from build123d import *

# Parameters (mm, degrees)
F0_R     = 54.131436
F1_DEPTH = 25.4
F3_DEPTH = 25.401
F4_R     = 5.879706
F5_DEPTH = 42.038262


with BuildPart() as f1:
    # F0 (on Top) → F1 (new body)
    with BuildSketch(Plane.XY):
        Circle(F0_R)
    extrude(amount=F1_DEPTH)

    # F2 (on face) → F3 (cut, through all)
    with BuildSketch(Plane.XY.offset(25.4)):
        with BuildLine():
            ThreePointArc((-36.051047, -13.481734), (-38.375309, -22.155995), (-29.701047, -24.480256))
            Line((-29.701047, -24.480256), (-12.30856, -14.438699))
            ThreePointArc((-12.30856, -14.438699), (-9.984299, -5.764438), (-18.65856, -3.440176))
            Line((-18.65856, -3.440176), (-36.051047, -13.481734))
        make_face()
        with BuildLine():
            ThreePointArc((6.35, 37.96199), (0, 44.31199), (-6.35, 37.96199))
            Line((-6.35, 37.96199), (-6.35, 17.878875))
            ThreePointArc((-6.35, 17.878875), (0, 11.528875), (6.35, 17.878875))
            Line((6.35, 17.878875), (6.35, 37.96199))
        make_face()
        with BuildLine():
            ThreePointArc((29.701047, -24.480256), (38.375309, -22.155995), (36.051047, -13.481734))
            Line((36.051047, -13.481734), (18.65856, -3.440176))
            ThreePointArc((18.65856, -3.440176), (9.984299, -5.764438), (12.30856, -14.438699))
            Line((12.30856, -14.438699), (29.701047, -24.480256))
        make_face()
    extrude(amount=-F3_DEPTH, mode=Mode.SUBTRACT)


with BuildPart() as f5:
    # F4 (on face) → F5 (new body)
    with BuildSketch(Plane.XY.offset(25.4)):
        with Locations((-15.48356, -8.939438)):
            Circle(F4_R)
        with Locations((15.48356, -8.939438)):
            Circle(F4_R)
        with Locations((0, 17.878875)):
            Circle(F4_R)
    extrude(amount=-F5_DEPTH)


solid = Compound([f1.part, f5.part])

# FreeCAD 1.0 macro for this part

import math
import FreeCAD as App
import Part
import Sketcher

V = App.Vector
Q = App.Units.Quantity

doc = App.newDocument("Part")
body = doc.addObject("PartDesign::Body", "Body")

# Sketch on XY plane
sketch1 = doc.addObject("Sketcher::SketchObject", "Sketch")
body.addObject(sketch1)
sketch1.AttachmentSupport = (doc.XY_Plane, [""])
sketch1.MapMode = "FlatFace"
sketch1.addGeometry(Part.Circle(V(0, 0, 0), V(0, 0, 1), 54), False)
sketch1.addConstraint([
    Sketcher.Constraint("Coincident", 0, 3, -1, 1),
    Sketcher.Constraint("Diameter", 0, Q("108.262872 mm")),
])
pad1 = doc.addObject("PartDesign::Pad", "Pad")
body.addObject(pad1)
pad1.Profile = sketch1
pad1.Length = Q("1 in")

# Sketch on XY plane
sketch2 = doc.addObject("Sketcher::SketchObject", "Sketch001")
body.addObject(sketch2)
sketch2.AttachmentSupport = (doc.XY_Plane, [""])
sketch2.MapMode = "FlatFace"
sketch2.AttachmentOffset = App.Placement(V(0, 0, 1 * 25.4), App.Rotation())
sketch2.addGeometry([
    Part.ArcOfCircle(Part.Circle(V(-33, -19, 0), V(0, 0, 1), 6), math.radians(120), math.radians(300)),  # 0
    Part.LineSegment(V(-30, -24, 0), V(-12, -14, 0)),  # 1
    Part.ArcOfCircle(Part.Circle(V(-15, -9, 0), V(0, 0, 1), 6), math.radians(-60), math.radians(120)),  # 2
    Part.LineSegment(V(-19, -3, 0), V(-36, -13, 0)),  # 3
    Part.ArcOfCircle(Part.Circle(V(0, 38, 0), V(0, 0, 1), 6), math.radians(0), math.radians(180)),  # 4
    Part.LineSegment(V(-6, 38, 0), V(-6, 18, 0)),  # 5
    Part.ArcOfCircle(Part.Circle(V(0, 18, 0), V(0, 0, 1), 6), math.radians(180), math.radians(360)),  # 6
    Part.LineSegment(V(6, 18, 0), V(6, 38, 0)),  # 7
    Part.ArcOfCircle(Part.Circle(V(33, -19, 0), V(0, 0, 1), 6), math.radians(-120), math.radians(60)),  # 8
    Part.LineSegment(V(36, -13, 0), V(19, -3, 0)),  # 9
    Part.ArcOfCircle(Part.Circle(V(15, -9, 0), V(0, 0, 1), 6), math.radians(60), math.radians(240)),  # 10
    Part.LineSegment(V(12, -14, 0), V(30, -24, 0)),  # 11
], False)
sketch2.addConstraint([
    Sketcher.Constraint("Tangent", 0, 2, 1, 1),
    Sketcher.Constraint("Tangent", 1, 2, 2, 1),
    Sketcher.Constraint("Tangent", 2, 2, 3, 1),
    Sketcher.Constraint("Tangent", 3, 2, 0, 1),
    Sketcher.Constraint("Tangent", 4, 2, 5, 1),
    Sketcher.Constraint("Tangent", 5, 2, 6, 1),
    Sketcher.Constraint("Tangent", 6, 2, 7, 1),
    Sketcher.Constraint("Tangent", 7, 2, 4, 1),
    Sketcher.Constraint("Tangent", 8, 2, 9, 1),
    Sketcher.Constraint("Tangent", 9, 2, 10, 1),
    Sketcher.Constraint("Tangent", 10, 2, 11, 1),
    Sketcher.Constraint("Tangent", 11, 2, 8, 1),
    Sketcher.Constraint("Vertical", 5),
    Sketcher.Constraint("Vertical", 7),
    Sketcher.Constraint("Equal", 0, 2),
    Sketcher.Constraint("Equal", 2, 4),
    Sketcher.Constraint("Equal", 6, 8),
    Sketcher.Constraint("Equal", 8, 10),
    Sketcher.Constraint("Symmetric", 0, 3, 8, 3, -2),
    Sketcher.Constraint("Symmetric", 2, 3, 10, 3, -2),
    Sketcher.Constraint("PointOnObject", 4, 3, -2),
    Sketcher.Constraint("Radius", 0, Q("0.25 in")),
    Sketcher.Constraint("Angle", 1, Q("30 deg")),
    Sketcher.Constraint("DistanceY", 1, 2, -1, 1, Q("14.438699 mm")),
    Sketcher.Constraint("DistanceY", 5, 2, 5, 1, Q("20.083115 mm")),
    Sketcher.Constraint("DistanceX", 2, 3, -1, 1, Q("15.483561 mm")),
    Sketcher.Constraint("DistanceY", -1, 1, 4, 3, Q("37.96199 mm")),
    Sketcher.Constraint("DistanceY", 0, 3, 6, 3, Q("36.85987 mm")),
])
pocket1 = doc.addObject("PartDesign::Pocket", "Pocket")
body.addObject(pocket1)
pocket1.Profile = sketch2
pocket1.Type = "ThroughAll"
body2 = doc.addObject("PartDesign::Body", "Body001")
body2.AllowCompound = True

# Sketch on XY plane
sketch3 = doc.addObject("Sketcher::SketchObject", "Sketch002")
body2.addObject(sketch3)
sketch3.AttachmentSupport = (doc.getObject("XY_Plane001"), [""])
sketch3.MapMode = "FlatFace"
sketch3.AttachmentOffset = App.Placement(V(0, 0, 1 * 25.4), App.Rotation())
sketch3.addGeometry([
    Part.Circle(V(-15, -9, 0), V(0, 0, 1), 6),
    Part.Circle(V(15, -9, 0), V(0, 0, 1), 6),
    Part.Circle(V(0, 18, 0), V(0, 0, 1), 6),
], False)
sketch3.addConstraint([
    Sketcher.Constraint("Equal", 0, 1),
    Sketcher.Constraint("Equal", 1, 2),
    Sketcher.Constraint("Symmetric", 0, 3, 1, 3, -2),
    Sketcher.Constraint("PointOnObject", 2, 3, -2),
    Sketcher.Constraint("Diameter", 0, Q("11.759412 mm")),
    Sketcher.Constraint("DistanceX", 0, 3, -1, 1, Q("15.48356 mm")),
    Sketcher.Constraint("DistanceY", 0, 3, -1, 1, Q("8.939438 mm")),
    Sketcher.Constraint("DistanceY", -1, 1, 2, 3, Q("17.878875 mm")),
])
pad2 = doc.addObject("PartDesign::Pad", "Pad001")
body2.addObject(pad2)
pad2.Profile = sketch3
pad2.Length = 42.038262
pad2.Reversed = True

doc.recompute()
